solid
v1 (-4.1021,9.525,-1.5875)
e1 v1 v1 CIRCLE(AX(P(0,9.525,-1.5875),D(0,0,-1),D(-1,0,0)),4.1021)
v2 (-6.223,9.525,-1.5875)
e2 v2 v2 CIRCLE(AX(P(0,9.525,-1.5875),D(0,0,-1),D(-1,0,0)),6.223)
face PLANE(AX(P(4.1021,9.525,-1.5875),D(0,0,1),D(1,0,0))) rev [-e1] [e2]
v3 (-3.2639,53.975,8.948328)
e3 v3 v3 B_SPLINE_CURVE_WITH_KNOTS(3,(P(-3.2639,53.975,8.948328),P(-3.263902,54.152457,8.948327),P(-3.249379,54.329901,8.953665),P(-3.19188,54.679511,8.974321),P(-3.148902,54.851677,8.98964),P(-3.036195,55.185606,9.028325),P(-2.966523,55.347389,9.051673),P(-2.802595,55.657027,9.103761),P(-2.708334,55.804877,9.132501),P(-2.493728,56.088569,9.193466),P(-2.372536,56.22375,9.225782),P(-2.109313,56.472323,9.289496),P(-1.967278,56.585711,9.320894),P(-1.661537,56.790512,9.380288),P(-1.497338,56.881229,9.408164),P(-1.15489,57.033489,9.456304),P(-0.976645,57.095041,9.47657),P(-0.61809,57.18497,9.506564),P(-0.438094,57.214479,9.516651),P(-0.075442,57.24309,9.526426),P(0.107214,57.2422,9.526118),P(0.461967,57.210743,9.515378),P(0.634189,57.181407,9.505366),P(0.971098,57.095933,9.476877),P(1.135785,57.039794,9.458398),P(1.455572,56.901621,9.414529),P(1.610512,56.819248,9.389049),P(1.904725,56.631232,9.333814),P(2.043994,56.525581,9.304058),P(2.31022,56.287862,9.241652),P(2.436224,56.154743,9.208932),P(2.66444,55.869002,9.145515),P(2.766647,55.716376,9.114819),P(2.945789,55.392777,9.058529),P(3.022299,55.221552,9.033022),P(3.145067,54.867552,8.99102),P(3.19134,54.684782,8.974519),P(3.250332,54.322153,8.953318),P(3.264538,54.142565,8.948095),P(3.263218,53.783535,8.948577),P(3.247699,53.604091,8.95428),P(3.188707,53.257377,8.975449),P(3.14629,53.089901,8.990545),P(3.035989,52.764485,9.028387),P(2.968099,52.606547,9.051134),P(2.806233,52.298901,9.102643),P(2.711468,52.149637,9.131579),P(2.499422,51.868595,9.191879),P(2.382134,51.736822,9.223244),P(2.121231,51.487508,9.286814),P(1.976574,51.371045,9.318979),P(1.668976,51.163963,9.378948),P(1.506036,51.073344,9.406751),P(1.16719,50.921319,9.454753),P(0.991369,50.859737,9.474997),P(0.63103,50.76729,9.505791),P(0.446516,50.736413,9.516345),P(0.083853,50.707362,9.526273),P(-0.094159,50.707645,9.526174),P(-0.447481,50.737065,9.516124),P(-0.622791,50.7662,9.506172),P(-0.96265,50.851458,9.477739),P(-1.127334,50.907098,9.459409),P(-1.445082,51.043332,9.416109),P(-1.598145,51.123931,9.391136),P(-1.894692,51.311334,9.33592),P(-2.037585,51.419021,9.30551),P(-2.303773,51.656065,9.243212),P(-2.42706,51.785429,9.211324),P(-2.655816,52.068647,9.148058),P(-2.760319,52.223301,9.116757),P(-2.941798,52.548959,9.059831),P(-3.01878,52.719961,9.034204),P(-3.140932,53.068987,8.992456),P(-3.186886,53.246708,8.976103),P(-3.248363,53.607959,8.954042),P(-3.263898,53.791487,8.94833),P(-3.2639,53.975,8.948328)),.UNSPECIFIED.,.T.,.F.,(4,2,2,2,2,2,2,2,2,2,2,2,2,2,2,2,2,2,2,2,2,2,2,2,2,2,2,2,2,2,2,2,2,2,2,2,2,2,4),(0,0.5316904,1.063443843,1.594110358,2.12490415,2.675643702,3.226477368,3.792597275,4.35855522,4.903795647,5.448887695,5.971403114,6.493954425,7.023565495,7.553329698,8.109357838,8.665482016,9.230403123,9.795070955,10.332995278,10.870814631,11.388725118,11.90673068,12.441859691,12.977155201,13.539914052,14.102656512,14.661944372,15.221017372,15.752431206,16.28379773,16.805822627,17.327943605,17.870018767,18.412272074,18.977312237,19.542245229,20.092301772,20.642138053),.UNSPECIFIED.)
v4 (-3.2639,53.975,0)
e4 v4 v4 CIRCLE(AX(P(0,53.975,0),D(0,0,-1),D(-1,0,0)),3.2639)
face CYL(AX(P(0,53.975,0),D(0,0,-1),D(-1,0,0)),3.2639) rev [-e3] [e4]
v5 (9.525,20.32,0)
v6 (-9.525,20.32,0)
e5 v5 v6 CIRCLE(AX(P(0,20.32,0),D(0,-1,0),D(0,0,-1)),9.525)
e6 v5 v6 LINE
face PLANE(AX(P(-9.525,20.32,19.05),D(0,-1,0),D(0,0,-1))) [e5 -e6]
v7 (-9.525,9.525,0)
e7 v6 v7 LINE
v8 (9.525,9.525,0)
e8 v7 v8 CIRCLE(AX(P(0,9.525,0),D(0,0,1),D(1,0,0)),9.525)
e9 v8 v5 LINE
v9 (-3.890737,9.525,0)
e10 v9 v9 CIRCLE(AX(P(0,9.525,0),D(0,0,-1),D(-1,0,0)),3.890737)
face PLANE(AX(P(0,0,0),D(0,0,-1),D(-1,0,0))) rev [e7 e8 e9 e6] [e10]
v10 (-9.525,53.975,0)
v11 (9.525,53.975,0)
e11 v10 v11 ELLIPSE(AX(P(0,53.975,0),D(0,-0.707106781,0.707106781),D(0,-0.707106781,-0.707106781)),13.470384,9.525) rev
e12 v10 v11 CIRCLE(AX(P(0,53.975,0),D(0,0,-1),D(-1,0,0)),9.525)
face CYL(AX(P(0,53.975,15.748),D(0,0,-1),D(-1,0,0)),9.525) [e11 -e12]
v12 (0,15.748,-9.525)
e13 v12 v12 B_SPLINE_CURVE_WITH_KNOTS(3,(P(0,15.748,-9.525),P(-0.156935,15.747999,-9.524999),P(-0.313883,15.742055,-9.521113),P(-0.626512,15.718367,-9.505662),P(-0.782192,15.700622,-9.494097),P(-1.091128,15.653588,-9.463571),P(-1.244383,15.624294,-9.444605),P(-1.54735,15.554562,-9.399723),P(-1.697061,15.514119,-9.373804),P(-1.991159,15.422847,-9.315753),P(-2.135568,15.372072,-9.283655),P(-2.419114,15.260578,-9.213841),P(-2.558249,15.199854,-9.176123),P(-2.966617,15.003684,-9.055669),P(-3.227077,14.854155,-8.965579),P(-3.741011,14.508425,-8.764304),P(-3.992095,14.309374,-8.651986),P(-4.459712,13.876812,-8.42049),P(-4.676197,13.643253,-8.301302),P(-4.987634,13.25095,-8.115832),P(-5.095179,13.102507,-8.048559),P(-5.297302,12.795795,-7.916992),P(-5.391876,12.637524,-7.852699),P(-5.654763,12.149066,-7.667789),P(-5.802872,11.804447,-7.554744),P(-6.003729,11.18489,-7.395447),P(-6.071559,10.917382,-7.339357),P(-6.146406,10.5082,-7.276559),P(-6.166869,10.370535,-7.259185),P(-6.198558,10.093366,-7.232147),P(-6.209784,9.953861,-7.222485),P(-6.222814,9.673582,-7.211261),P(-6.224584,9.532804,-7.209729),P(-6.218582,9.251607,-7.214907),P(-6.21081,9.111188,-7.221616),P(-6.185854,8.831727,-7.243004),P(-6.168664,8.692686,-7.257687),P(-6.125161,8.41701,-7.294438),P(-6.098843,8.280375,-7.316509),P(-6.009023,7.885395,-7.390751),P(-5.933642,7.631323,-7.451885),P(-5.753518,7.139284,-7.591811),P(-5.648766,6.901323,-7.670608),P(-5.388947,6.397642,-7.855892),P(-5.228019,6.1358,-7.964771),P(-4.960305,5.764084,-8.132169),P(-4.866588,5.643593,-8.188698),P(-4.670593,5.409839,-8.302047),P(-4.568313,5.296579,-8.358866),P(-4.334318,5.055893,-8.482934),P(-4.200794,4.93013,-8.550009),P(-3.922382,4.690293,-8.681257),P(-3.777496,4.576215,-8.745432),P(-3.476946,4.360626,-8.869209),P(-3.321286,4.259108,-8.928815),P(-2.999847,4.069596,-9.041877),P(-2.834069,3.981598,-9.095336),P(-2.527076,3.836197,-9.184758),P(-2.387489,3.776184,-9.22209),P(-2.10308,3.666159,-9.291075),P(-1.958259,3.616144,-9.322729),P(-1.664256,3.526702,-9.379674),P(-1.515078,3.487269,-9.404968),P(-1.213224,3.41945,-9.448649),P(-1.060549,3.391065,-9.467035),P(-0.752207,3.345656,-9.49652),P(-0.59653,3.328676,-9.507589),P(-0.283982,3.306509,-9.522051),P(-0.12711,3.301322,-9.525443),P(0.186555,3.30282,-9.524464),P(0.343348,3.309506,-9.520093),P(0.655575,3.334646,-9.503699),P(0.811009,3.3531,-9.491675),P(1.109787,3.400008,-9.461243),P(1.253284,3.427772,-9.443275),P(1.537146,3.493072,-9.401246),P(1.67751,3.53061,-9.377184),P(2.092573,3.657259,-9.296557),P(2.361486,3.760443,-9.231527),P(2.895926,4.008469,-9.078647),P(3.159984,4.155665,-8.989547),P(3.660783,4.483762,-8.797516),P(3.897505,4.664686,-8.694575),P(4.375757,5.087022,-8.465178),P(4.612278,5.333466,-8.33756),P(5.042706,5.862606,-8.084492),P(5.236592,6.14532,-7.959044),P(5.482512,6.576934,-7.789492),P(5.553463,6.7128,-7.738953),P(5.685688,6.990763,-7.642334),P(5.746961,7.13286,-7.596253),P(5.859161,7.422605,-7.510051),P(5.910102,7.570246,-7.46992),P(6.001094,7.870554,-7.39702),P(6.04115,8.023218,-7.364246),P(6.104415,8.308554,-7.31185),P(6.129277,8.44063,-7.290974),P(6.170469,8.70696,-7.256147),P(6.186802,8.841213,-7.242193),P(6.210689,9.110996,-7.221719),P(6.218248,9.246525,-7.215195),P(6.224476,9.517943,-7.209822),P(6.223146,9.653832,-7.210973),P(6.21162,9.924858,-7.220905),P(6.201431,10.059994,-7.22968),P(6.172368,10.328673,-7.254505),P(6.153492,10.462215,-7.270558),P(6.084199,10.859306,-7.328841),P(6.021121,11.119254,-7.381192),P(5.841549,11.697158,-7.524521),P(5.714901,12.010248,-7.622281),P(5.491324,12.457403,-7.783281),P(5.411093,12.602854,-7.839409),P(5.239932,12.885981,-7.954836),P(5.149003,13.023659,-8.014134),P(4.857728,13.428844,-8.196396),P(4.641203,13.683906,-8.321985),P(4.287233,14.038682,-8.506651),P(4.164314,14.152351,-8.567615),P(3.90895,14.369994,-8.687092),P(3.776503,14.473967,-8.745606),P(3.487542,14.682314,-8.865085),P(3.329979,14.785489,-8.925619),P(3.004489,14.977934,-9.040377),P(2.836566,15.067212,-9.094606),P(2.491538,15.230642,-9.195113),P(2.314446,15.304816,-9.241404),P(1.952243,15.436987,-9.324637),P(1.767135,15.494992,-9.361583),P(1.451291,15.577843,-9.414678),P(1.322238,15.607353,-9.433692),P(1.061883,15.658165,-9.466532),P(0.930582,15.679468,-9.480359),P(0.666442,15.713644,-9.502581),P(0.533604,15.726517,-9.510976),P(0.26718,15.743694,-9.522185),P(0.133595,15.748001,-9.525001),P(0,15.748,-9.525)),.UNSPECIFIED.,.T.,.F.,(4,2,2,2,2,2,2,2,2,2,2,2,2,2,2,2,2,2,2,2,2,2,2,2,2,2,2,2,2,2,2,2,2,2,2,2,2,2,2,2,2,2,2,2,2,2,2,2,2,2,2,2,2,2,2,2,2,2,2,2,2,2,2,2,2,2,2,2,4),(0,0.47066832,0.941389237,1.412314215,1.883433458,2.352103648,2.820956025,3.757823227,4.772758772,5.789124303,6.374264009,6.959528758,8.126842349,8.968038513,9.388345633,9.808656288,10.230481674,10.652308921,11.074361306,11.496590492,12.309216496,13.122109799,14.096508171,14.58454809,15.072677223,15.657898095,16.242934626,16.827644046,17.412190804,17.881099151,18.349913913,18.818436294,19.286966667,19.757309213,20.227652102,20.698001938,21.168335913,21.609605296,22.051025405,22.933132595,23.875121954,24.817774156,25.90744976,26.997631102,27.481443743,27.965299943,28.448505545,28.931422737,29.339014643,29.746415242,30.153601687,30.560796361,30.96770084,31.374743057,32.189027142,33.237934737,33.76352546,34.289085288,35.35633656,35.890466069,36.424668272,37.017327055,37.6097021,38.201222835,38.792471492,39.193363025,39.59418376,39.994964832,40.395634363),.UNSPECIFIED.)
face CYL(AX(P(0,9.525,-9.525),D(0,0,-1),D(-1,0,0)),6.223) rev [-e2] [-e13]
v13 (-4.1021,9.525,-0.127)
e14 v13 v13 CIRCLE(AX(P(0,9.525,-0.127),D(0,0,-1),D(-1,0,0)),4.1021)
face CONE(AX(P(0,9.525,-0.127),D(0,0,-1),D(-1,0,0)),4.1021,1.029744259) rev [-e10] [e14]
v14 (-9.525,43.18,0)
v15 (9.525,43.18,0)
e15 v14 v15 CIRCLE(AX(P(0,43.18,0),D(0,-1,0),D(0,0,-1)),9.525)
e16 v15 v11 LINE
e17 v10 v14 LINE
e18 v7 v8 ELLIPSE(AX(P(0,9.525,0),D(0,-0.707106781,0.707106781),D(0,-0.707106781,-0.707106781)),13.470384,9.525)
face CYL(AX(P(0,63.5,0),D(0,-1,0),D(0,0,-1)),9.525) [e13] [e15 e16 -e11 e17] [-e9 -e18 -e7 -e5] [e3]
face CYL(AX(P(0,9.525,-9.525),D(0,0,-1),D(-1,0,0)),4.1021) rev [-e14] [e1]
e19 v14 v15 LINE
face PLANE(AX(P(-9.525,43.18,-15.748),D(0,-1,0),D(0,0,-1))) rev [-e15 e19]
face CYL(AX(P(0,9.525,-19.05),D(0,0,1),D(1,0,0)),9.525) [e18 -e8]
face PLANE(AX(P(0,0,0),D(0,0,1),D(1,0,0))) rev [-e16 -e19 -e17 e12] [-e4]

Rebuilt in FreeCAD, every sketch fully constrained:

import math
import FreeCAD as App
import Part
import Sketcher

V = App.Vector
Q = App.Units.Quantity


def add_polygon(sketch, points):
    """Adds a closed chain of lines whose ends are joined by coincident constraints."""
    first, n = sketch.GeometryCount, len(points)
    for a, b in zip(points, points[1:] + points[:1]):
        sketch.addGeometry(Part.LineSegment(App.Vector(*a, 0), App.Vector(*b, 0)), False)
    for i in range(n):
        sketch.addConstraint(Sketcher.Constraint("Coincident", first + i, 2, first + (i + 1) % n, 1))

doc = App.newDocument("Part")
body = doc.addObject("PartDesign::Body", "Body")

sketch1 = body.newObject("Sketcher::SketchObject", "Sketch")
sketch1.AttachmentSupport = (doc.getObject("XZ_Plane"), [""])
sketch1.MapMode = "FlatFace"
sketch1.addGeometry(Part.Circle(V(0, 0, 0), V(0, 0, 1), 10), False)
sketch1.addConstraint(Sketcher.Constraint("Coincident", 0, 3, -1, 1))
sketch1.addConstraint(Sketcher.Constraint("Diameter", 0, Q("0.75 in")))
pad1 = body.newObject("PartDesign::Pad", "Pad")
pad1.Profile = sketch1
pad1.Length = Q("2.5 in")
pad1.Reversed = True

sketch2 = body.newObject("Sketcher::SketchObject", "Sketch001")
sketch2.AttachmentSupport = (doc.getObject("XY_Plane"), [""])
sketch2.MapMode = "FlatFace"
add_polygon(sketch2, [(-10, 64), (-10, 43), (10, 43), (10, 64)])
sketch2.addConstraint(Sketcher.Constraint("Vertical", 0))
sketch2.addConstraint(Sketcher.Constraint("Horizontal", 1))
sketch2.addConstraint(Sketcher.Constraint("Vertical", 2))
sketch2.addConstraint(Sketcher.Constraint("Horizontal", 3))
sketch2.addConstraint(Sketcher.Constraint("DistanceY", 0, 2, 0, 1, Q("0.8 in")))
sketch2.addConstraint(Sketcher.Constraint("DistanceX", 1, 1, 1, 2, Q("0.75 in")))
sketch2.addConstraint(Sketcher.Constraint("DistanceY", -1, 1, 0, 2, Q("1.7 in")))
sketch2.addConstraint(Sketcher.Constraint("DistanceX", 0, 2, -1, 1, Q("0.375 in")))
pocket1 = body.newObject("PartDesign::Pocket", "Pocket")
pocket1.Profile = sketch2
pocket1.Length = Q("0.62 in")

sketch3 = body.newObject("Sketcher::SketchObject", "Sketch002")
sketch3.AttachmentSupport = (doc.getObject("XY_Plane"), [""])
sketch3.MapMode = "FlatFace"
sketch3.addGeometry(Part.LineSegment(V(10, 64, 0), V(10, 54, 0)), False)
sketch3.addGeometry(Part.ArcOfCircle(Part.Circle(V(0, 54, 0), V(0, 0, 1), 10), math.radians(0), math.radians(90)), False)
sketch3.addGeometry(Part.LineSegment(V(0, 64, 0), V(10, 64, 0)), False)
sketch3.addGeometry(Part.LineSegment(V(-10, 64, 0), V(0, 64, 0)), False)
sketch3.addGeometry(Part.ArcOfCircle(Part.Circle(V(0, 54, 0), V(0, 0, 1), 10), math.radians(90), math.radians(180)), False)
sketch3.addGeometry(Part.LineSegment(V(-10, 54, 0), V(-10, 64, 0)), False)
sketch3.addConstraint(Sketcher.Constraint("Tangent", 0, 2, 1, 1))
sketch3.addConstraint(Sketcher.Constraint("Tangent", 1, 2, 2, 1))
sketch3.addConstraint(Sketcher.Constraint("Coincident", 2, 2, 0, 1))
sketch3.addConstraint(Sketcher.Constraint("Tangent", 3, 2, 4, 1))
sketch3.addConstraint(Sketcher.Constraint("Tangent", 4, 2, 5, 1))
sketch3.addConstraint(Sketcher.Constraint("Coincident", 5, 2, 3, 1))
sketch3.addConstraint(Sketcher.Constraint("Vertical", 0))
sketch3.addConstraint(Sketcher.Constraint("Horizontal", 2))
sketch3.addConstraint(Sketcher.Constraint("Horizontal", 3))
sketch3.addConstraint(Sketcher.Constraint("Vertical", 5))
sketch3.addConstraint(Sketcher.Constraint("Coincident", 4, 3, 1, 3))
sketch3.addConstraint(Sketcher.Constraint("Equal", 1, 4))
sketch3.addConstraint(Sketcher.Constraint("PointOnObject", 1, 3, -2))
sketch3.addConstraint(Sketcher.Constraint("Radius", 1, Q("0.375 in")))
sketch3.addConstraint(Sketcher.Constraint("DistanceY", -1, 1, 1, 2, Q("2.5 in")))
pocket2 = body.newObject("PartDesign::Pocket", "Pocket001")
pocket2.Profile = sketch3
pocket2.Length = Q("0.62 in")
pocket2.Reversed = True

sketch4 = body.newObject("Sketcher::SketchObject", "Sketch003")
sketch4.AttachmentSupport = (doc.getObject("XY_Plane"), [""])
sketch4.MapMode = "FlatFace"
sketch4.addGeometry(Part.Circle(V(0, 54, 0), V(0, 0, 1), 3.3), False)
sketch4.addConstraint(Sketcher.Constraint("PointOnObject", 0, 3, -2))
sketch4.addConstraint(Sketcher.Constraint("Diameter", 0, Q("0.257 in")))
sketch4.addConstraint(Sketcher.Constraint("DistanceY", -1, 1, 0, 3, Q("2.125 in")))
doc.recompute()
hole = body.newObject("PartDesign::Hole", "Hole")
hole.Profile = sketch4
hole.ThreadType = "None"
hole.Diameter = Q("0.257 in")
hole.DepthType = "Dimension"
hole.Depth = Q("0.9025 in")
hole.DrillPoint = "Angled"
hole.DrillPointAngle = 118
hole.Reversed = True

sketch5 = body.newObject("Sketcher::SketchObject", "Sketch004")
sketch5.AttachmentSupport = (doc.getObject("XY_Plane"), [""])
sketch5.MapMode = "FlatFace"
add_polygon(sketch5, [(-10, 20), (-10, 0), (10, 0), (10, 20)])
sketch5.addConstraint(Sketcher.Constraint("Vertical", 0))
sketch5.addConstraint(Sketcher.Constraint("Horizontal", 1))
sketch5.addConstraint(Sketcher.Constraint("Vertical", 2))
sketch5.addConstraint(Sketcher.Constraint("Horizontal", 3))
sketch5.addConstraint(Sketcher.Constraint("Symmetric", 0, 2, 1, 2, -1, 1))
sketch5.addConstraint(Sketcher.Constraint("DistanceY", 0, 2, 0, 1, Q("0.8 in")))
sketch5.addConstraint(Sketcher.Constraint("DistanceX", 1, 1, 1, 2, Q("0.75 in")))
pocket3 = body.newObject("PartDesign::Pocket", "Pocket002")
pocket3.Profile = sketch5
pocket3.Length = Q("0.75 in")
pocket3.Reversed = True

sketch6 = body.newObject("Sketcher::SketchObject", "Sketch005")
sketch6.AttachmentSupport = (doc.getObject("XY_Plane"), [""])
sketch6.MapMode = "FlatFace"
sketch6.addGeometry(Part.ArcOfCircle(Part.Circle(V(0, 10, 0), V(0, 0, 1), 10), math.radians(180), math.radians(270)), False)
sketch6.addGeometry(Part.LineSegment(V(-10, 10, 0), V(-10, 0, 0)), False)
sketch6.addGeometry(Part.LineSegment(V(-10, 0, 0), V(0, 0, 0)), False)
sketch6.addGeometry(Part.ArcOfCircle(Part.Circle(V(0, 10, 0), V(0, 0, 1), 10), math.radians(-90), math.radians(0)), False)
sketch6.addGeometry(Part.LineSegment(V(0, 0, 0), V(10, 0, 0)), False)
sketch6.addGeometry(Part.LineSegment(V(10, 0, 0), V(10, 10, 0)), False)
sketch6.addConstraint(Sketcher.Constraint("Tangent", 0, 1, 1, 1))
sketch6.addConstraint(Sketcher.Constraint("Coincident", 1, 2, 2, 1))
sketch6.addConstraint(Sketcher.Constraint("Tangent", 2, 2, 0, 2))
sketch6.addConstraint(Sketcher.Constraint("Tangent", 3, 1, 4, 1))
sketch6.addConstraint(Sketcher.Constraint("Coincident", 4, 2, 5, 1))
sketch6.addConstraint(Sketcher.Constraint("Tangent", 5, 2, 3, 2))
sketch6.addConstraint(Sketcher.Constraint("Vertical", 1))
sketch6.addConstraint(Sketcher.Constraint("Horizontal", 2))
sketch6.addConstraint(Sketcher.Constraint("Horizontal", 4))
sketch6.addConstraint(Sketcher.Constraint("Vertical", 5))
sketch6.addConstraint(Sketcher.Constraint("Coincident", 2, 2, -1, 1))
sketch6.addConstraint(Sketcher.Constraint("Coincident", 3, 1, -1, 1))
sketch6.addConstraint(Sketcher.Constraint("Equal", 0, 3))
sketch6.addConstraint(Sketcher.Constraint("Radius", 0, Q("0.375 in")))
pocket4 = body.newObject("PartDesign::Pocket", "Pocket003")
pocket4.Profile = sketch6
pocket4.Length = Q("0.75 in")

sketch7 = body.newObject("Sketcher::SketchObject", "Sketch006")
sketch7.AttachmentSupport = (doc.getObject("XY_Plane"), [""])
sketch7.MapMode = "FlatFace"
sketch7.AttachmentOffset = App.Placement(V(0, 0, -0.375 * 25.4), App.Rotation())
sketch7.addGeometry(Part.Circle(V(0, 9.5, 0), V(0, 0, 1), 4.1), False)
sketch7.addConstraint(Sketcher.Constraint("PointOnObject", 0, 3, -2))
sketch7.addConstraint(Sketcher.Constraint("Diameter", 0, Q("0.323 in")))
sketch7.addConstraint(Sketcher.Constraint("DistanceY", -1, 1, 0, 3, Q("0.375 in")))
doc.recompute()
hole2 = body.newObject("PartDesign::Hole", "Hole001")
hole2.Profile = sketch7
hole2.ThreadType = "None"
hole2.Diameter = Q("0.323 in")
hole2.DepthType = "Dimension"
hole2.Depth = Q("0.37 in")
hole2.DrillPoint = "Angled"
hole2.DrillPointAngle = 118
hole2.HoleCutType = "Counterbore"
hole2.HoleCutDiameter = Q("0.49 in")
hole2.HoleCutDepth = Q("0.3125 in")
hole2.Reversed = True

doc.recompute()
